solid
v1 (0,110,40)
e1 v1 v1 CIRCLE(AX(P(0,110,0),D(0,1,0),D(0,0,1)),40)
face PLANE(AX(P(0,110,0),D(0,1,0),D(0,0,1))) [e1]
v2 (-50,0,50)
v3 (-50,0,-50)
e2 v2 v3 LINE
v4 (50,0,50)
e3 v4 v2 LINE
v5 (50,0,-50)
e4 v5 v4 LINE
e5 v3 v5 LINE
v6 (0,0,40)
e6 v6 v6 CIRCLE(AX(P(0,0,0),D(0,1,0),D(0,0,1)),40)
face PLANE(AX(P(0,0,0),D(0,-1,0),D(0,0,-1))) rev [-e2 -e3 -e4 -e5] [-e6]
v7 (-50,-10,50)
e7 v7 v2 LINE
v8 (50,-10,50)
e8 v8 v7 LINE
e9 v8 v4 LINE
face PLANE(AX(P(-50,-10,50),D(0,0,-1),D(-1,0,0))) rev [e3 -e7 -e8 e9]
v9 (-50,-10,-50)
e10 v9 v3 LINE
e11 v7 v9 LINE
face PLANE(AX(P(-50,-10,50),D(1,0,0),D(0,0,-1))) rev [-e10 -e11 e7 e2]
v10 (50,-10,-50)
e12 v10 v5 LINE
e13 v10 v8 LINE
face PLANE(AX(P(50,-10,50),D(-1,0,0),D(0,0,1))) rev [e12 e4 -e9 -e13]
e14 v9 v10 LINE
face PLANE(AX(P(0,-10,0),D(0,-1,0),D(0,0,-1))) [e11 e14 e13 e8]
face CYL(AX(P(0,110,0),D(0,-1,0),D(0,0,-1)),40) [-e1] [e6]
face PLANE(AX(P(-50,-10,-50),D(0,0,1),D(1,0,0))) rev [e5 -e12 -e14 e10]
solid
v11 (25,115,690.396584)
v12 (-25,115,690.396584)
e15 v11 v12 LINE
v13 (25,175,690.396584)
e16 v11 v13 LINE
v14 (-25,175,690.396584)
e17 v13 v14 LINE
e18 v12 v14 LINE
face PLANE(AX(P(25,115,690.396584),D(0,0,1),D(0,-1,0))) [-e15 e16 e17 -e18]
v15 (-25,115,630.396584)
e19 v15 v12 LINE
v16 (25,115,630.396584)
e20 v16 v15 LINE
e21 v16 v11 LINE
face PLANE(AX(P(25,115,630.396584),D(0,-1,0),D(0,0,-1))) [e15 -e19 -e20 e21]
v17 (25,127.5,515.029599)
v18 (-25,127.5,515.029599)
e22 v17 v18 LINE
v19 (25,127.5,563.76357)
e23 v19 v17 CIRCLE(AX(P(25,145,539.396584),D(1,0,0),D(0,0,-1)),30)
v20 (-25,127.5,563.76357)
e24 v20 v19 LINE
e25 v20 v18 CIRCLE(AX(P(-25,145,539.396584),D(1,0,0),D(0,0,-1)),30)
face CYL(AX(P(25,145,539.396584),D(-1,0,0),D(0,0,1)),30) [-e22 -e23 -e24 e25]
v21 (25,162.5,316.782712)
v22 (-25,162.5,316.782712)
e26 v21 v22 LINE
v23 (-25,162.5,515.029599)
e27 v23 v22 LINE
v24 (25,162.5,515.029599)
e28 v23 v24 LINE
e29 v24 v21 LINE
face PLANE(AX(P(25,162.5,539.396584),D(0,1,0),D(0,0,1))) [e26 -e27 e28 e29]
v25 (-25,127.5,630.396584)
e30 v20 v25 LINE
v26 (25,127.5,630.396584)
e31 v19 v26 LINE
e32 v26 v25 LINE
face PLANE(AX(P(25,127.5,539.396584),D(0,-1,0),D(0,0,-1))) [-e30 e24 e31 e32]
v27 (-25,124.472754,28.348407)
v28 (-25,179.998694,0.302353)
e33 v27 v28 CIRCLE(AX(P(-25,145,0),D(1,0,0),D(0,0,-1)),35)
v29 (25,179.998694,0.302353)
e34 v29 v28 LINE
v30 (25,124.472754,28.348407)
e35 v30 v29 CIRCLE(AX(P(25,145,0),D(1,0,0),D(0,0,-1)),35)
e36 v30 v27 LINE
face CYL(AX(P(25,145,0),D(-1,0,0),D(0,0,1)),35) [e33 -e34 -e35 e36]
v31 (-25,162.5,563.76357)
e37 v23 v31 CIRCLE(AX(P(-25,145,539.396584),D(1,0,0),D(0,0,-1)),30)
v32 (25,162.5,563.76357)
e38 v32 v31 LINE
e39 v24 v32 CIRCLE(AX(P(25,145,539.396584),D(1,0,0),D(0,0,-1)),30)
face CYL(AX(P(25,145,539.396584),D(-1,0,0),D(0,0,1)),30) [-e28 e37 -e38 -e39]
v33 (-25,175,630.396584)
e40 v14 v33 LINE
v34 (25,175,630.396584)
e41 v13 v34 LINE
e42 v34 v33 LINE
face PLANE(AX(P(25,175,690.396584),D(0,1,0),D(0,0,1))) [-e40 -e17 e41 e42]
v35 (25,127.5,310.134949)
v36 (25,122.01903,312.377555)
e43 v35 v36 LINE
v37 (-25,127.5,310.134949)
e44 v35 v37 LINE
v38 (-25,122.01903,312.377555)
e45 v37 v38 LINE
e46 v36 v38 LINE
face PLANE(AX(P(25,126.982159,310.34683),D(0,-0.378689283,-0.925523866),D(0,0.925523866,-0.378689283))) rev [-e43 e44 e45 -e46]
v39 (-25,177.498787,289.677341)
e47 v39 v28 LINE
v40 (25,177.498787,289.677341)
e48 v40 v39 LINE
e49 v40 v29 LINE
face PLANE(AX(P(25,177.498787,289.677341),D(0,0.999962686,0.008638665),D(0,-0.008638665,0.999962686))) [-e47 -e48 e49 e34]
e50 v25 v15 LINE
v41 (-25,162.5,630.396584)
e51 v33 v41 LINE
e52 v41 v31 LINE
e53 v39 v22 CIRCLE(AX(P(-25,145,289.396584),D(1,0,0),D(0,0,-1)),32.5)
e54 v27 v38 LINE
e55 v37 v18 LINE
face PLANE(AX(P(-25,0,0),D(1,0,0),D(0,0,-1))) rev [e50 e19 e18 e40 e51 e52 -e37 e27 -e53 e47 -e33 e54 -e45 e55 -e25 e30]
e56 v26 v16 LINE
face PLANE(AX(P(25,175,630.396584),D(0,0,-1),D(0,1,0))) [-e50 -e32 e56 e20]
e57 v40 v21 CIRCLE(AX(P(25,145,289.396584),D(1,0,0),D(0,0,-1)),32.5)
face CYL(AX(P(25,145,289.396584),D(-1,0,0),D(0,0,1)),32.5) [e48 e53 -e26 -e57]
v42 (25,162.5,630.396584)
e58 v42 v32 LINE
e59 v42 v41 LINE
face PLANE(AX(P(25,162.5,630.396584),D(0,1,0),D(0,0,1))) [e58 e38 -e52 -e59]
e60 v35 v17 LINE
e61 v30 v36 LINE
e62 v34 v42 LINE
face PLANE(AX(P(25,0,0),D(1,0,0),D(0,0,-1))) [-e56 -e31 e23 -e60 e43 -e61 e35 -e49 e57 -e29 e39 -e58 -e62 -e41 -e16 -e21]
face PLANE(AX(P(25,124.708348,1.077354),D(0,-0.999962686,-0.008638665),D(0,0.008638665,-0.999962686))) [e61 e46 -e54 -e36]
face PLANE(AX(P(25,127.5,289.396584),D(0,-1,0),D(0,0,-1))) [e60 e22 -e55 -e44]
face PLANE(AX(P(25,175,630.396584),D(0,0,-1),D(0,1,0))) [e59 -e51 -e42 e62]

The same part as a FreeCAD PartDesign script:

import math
import FreeCAD as App
import Part
import Sketcher
from FreeCAD import Vector
Q = App.Units.Quantity

doc = App.newDocument("Part")
body = doc.addObject("PartDesign::Body", "Body")

sketch1 = body.newObject("Sketcher::SketchObject", "Sketch")
sketch1.AttachmentSupport = (doc.getObject("XZ_Plane"), [""])
sketch1.MapMode = "FlatFace"
sketch1.addGeometry(Part.Circle(Vector(0, 0, 0), Vector(0, 0, 1), 40), False)
sketch1.addConstraint([
    Sketcher.Constraint("Coincident", 0, 3, -1, 1),
    Sketcher.Constraint("Diameter", 0, Q("80 mm")),
])
pad1 = body.newObject("PartDesign::Pad", "Pad")
pad1.Profile = sketch1
pad1.Length = 110
pad1.Reversed = True

sketch2 = body.newObject("Sketcher::SketchObject", "Sketch001")
sketch2.AttachmentSupport = (doc.getObject("XZ_Plane"), [""])
sketch2.MapMode = "FlatFace"
sketch2.addGeometry([
    Part.LineSegment(Vector(-50, 50, 0), Vector(-50, -50, 0)),
    Part.LineSegment(Vector(-50, -50, 0), Vector(50, -50, 0)),
    Part.LineSegment(Vector(50, -50, 0), Vector(50, 50, 0)),
    Part.LineSegment(Vector(50, 50, 0), Vector(-50, 50, 0)),
], False)
sketch2.addConstraint([
    Sketcher.Constraint("Coincident", 0, 2, 1, 1),
    Sketcher.Constraint("Coincident", 1, 2, 2, 1),
    Sketcher.Constraint("Coincident", 2, 2, 3, 1),
    Sketcher.Constraint("Coincident", 3, 2, 0, 1),
    Sketcher.Constraint("Vertical", 0),
    Sketcher.Constraint("Horizontal", 1),
    Sketcher.Constraint("Vertical", 2),
    Sketcher.Constraint("Horizontal", 3),
    Sketcher.Constraint("Symmetric", 0, 2, 2, 2, -1, 1),
    Sketcher.Constraint("Equal", 3, 0),
    Sketcher.Constraint("DistanceX", 1, 1, 1, 2, Q("100 mm")),
])
pad2 = body.newObject("PartDesign::Pad", "Pad001")
pad2.Profile = sketch2
pad2.Length = 10
body2 = doc.addObject("PartDesign::Body", "Body001")

sketch3 = body2.newObject("Sketcher::SketchObject", "Sketch002")
sketch3.AttachmentSupport = (doc.getObject("YZ_Plane001"), [""])
sketch3.MapMode = "FlatFace"
sketch3.addGeometry([
    Part.LineSegment(Vector(180, 0, 0), Vector(177, 290, 0)),
    Part.ArcOfCircle(Part.Circle(Vector(145, 289, 0), Vector(0, 0, 1), 33), math.radians(0), math.radians(57)),
    Part.LineSegment(Vector(162, 317, 0), Vector(162, 515, 0)),
    Part.ArcOfCircle(Part.Circle(Vector(145, 539, 0), Vector(0, 0, 1), 30), math.radians(-54), math.radians(54)),
    Part.LineSegment(Vector(162, 564, 0), Vector(162, 630, 0)),
    Part.LineSegment(Vector(162, 630, 0), Vector(175, 630, 0)),
    Part.LineSegment(Vector(175, 630, 0), Vector(175, 690, 0)),
    Part.LineSegment(Vector(175, 690, 0), Vector(115, 690, 0)),
    Part.LineSegment(Vector(115, 690, 0), Vector(115, 630, 0)),
    Part.LineSegment(Vector(115, 630, 0), Vector(128, 630, 0)),
    Part.LineSegment(Vector(128, 630, 0), Vector(128, 564, 0)),
    Part.ArcOfCircle(Part.Circle(Vector(145, 539, 0), Vector(0, 0, 1), 30), math.radians(126), math.radians(234)),
    Part.LineSegment(Vector(128, 515, 0), Vector(128, 310, 0)),
    Part.LineSegment(Vector(128, 310, 0), Vector(122, 312, 0)),
    Part.LineSegment(Vector(122, 312, 0), Vector(124, 28, 0)),
    Part.ArcOfCircle(Part.Circle(Vector(145, 0, 0), Vector(0, 0, 1), 35), math.radians(126), math.radians(360)),
], False)
sketch3.addConstraint([
    Sketcher.Constraint("Tangent", 0, 2, 1, 1),
    Sketcher.Constraint("Coincident", 1, 2, 2, 1),
    Sketcher.Constraint("Coincident", 2, 2, 3, 1),
    Sketcher.Constraint("Coincident", 3, 2, 4, 1),
    Sketcher.Constraint("Coincident", 4, 2, 5, 1),
    Sketcher.Constraint("Coincident", 5, 2, 6, 1),
    Sketcher.Constraint("Coincident", 6, 2, 7, 1),
    Sketcher.Constraint("Coincident", 7, 2, 8, 1),
    Sketcher.Constraint("Coincident", 8, 2, 9, 1),
    Sketcher.Constraint("Coincident", 9, 2, 10, 1),
    Sketcher.Constraint("Coincident", 10, 2, 11, 1),
    Sketcher.Constraint("Coincident", 11, 2, 12, 1),
    Sketcher.Constraint("Coincident", 12, 2, 13, 1),
    Sketcher.Constraint("Coincident", 13, 2, 14, 1),
    Sketcher.Constraint("Coincident", 14, 2, 15, 1),
    Sketcher.Constraint("Tangent", 15, 2, 0, 1),
    Sketcher.Constraint("Vertical", 2),
    Sketcher.Constraint("Vertical", 4),
    Sketcher.Constraint("Horizontal", 5),
    Sketcher.Constraint("Vertical", 6),
    Sketcher.Constraint("Horizontal", 7),
    Sketcher.Constraint("Vertical", 8),
    Sketcher.Constraint("Horizontal", 9),
    Sketcher.Constraint("Vertical", 10),
    Sketcher.Constraint("Vertical", 12),
    Sketcher.Constraint("Coincident", 11, 3, 3, 3),
    Sketcher.Constraint("Equal", 3, 11),
    Sketcher.Constraint("PointOnObject", 15, 3, -1),
    Sketcher.Constraint("Parallel", 0, 14),
    Sketcher.Constraint("Horizontal", 5, 2, 8, 2),
    Sketcher.Constraint("Horizontal", 3, 2, 10, 2),
    Sketcher.Constraint("Horizontal", 2, 2, 11, 2),
    Sketcher.Constraint("Vertical", 1, 3, 3, 3),
    Sketcher.Constraint("Vertical", 11, 3, 15, 3),
    Sketcher.Constraint("Vertical", 2, 2, 3, 2),
    Sketcher.Constraint("Equal", 5, 9),
    Sketcher.Constraint("Equal", 7, 6),
    Sketcher.Constraint("Radius", 3, Q("30 mm")),
    Sketcher.Constraint("Radius", 15, Q("35 mm")),
    Sketcher.Constraint("Radius", 1, Q("32.5 mm")),
    Sketcher.Constraint("DistanceX", 7, 2, 7, 1, Q("60 mm")),
    Sketcher.Constraint("DistanceX", 5, 1, 5, 2, Q("12.5 mm")),
    Sketcher.Constraint("DistanceX", -1, 1, 1, 3, Q("145 mm")),
    Sketcher.Constraint("DistanceY", 1, 3, 3, 3, Q("250 mm")),
    Sketcher.Constraint("DistanceY", 3, 3, 4, 2, Q("91 mm")),
    Sketcher.Constraint("DistanceY", 12, 2, 12, 1, Q("204.894649 mm")),
    Sketcher.Constraint("DistanceY", -1, 1, 2, 2, Q("515.029599 mm")),
    Sketcher.Constraint("Distance", 13, Q("5.92202 mm")),
    Sketcher.Constraint("DistanceX", -1, 1, 13, 2, Q("122.01903 mm")),
])
pad3 = body2.newObject("PartDesign::Pad", "Pad002")
pad3.Profile = sketch3
pad3.Length = 50
pad3.Midplane = True

doc.recompute()
